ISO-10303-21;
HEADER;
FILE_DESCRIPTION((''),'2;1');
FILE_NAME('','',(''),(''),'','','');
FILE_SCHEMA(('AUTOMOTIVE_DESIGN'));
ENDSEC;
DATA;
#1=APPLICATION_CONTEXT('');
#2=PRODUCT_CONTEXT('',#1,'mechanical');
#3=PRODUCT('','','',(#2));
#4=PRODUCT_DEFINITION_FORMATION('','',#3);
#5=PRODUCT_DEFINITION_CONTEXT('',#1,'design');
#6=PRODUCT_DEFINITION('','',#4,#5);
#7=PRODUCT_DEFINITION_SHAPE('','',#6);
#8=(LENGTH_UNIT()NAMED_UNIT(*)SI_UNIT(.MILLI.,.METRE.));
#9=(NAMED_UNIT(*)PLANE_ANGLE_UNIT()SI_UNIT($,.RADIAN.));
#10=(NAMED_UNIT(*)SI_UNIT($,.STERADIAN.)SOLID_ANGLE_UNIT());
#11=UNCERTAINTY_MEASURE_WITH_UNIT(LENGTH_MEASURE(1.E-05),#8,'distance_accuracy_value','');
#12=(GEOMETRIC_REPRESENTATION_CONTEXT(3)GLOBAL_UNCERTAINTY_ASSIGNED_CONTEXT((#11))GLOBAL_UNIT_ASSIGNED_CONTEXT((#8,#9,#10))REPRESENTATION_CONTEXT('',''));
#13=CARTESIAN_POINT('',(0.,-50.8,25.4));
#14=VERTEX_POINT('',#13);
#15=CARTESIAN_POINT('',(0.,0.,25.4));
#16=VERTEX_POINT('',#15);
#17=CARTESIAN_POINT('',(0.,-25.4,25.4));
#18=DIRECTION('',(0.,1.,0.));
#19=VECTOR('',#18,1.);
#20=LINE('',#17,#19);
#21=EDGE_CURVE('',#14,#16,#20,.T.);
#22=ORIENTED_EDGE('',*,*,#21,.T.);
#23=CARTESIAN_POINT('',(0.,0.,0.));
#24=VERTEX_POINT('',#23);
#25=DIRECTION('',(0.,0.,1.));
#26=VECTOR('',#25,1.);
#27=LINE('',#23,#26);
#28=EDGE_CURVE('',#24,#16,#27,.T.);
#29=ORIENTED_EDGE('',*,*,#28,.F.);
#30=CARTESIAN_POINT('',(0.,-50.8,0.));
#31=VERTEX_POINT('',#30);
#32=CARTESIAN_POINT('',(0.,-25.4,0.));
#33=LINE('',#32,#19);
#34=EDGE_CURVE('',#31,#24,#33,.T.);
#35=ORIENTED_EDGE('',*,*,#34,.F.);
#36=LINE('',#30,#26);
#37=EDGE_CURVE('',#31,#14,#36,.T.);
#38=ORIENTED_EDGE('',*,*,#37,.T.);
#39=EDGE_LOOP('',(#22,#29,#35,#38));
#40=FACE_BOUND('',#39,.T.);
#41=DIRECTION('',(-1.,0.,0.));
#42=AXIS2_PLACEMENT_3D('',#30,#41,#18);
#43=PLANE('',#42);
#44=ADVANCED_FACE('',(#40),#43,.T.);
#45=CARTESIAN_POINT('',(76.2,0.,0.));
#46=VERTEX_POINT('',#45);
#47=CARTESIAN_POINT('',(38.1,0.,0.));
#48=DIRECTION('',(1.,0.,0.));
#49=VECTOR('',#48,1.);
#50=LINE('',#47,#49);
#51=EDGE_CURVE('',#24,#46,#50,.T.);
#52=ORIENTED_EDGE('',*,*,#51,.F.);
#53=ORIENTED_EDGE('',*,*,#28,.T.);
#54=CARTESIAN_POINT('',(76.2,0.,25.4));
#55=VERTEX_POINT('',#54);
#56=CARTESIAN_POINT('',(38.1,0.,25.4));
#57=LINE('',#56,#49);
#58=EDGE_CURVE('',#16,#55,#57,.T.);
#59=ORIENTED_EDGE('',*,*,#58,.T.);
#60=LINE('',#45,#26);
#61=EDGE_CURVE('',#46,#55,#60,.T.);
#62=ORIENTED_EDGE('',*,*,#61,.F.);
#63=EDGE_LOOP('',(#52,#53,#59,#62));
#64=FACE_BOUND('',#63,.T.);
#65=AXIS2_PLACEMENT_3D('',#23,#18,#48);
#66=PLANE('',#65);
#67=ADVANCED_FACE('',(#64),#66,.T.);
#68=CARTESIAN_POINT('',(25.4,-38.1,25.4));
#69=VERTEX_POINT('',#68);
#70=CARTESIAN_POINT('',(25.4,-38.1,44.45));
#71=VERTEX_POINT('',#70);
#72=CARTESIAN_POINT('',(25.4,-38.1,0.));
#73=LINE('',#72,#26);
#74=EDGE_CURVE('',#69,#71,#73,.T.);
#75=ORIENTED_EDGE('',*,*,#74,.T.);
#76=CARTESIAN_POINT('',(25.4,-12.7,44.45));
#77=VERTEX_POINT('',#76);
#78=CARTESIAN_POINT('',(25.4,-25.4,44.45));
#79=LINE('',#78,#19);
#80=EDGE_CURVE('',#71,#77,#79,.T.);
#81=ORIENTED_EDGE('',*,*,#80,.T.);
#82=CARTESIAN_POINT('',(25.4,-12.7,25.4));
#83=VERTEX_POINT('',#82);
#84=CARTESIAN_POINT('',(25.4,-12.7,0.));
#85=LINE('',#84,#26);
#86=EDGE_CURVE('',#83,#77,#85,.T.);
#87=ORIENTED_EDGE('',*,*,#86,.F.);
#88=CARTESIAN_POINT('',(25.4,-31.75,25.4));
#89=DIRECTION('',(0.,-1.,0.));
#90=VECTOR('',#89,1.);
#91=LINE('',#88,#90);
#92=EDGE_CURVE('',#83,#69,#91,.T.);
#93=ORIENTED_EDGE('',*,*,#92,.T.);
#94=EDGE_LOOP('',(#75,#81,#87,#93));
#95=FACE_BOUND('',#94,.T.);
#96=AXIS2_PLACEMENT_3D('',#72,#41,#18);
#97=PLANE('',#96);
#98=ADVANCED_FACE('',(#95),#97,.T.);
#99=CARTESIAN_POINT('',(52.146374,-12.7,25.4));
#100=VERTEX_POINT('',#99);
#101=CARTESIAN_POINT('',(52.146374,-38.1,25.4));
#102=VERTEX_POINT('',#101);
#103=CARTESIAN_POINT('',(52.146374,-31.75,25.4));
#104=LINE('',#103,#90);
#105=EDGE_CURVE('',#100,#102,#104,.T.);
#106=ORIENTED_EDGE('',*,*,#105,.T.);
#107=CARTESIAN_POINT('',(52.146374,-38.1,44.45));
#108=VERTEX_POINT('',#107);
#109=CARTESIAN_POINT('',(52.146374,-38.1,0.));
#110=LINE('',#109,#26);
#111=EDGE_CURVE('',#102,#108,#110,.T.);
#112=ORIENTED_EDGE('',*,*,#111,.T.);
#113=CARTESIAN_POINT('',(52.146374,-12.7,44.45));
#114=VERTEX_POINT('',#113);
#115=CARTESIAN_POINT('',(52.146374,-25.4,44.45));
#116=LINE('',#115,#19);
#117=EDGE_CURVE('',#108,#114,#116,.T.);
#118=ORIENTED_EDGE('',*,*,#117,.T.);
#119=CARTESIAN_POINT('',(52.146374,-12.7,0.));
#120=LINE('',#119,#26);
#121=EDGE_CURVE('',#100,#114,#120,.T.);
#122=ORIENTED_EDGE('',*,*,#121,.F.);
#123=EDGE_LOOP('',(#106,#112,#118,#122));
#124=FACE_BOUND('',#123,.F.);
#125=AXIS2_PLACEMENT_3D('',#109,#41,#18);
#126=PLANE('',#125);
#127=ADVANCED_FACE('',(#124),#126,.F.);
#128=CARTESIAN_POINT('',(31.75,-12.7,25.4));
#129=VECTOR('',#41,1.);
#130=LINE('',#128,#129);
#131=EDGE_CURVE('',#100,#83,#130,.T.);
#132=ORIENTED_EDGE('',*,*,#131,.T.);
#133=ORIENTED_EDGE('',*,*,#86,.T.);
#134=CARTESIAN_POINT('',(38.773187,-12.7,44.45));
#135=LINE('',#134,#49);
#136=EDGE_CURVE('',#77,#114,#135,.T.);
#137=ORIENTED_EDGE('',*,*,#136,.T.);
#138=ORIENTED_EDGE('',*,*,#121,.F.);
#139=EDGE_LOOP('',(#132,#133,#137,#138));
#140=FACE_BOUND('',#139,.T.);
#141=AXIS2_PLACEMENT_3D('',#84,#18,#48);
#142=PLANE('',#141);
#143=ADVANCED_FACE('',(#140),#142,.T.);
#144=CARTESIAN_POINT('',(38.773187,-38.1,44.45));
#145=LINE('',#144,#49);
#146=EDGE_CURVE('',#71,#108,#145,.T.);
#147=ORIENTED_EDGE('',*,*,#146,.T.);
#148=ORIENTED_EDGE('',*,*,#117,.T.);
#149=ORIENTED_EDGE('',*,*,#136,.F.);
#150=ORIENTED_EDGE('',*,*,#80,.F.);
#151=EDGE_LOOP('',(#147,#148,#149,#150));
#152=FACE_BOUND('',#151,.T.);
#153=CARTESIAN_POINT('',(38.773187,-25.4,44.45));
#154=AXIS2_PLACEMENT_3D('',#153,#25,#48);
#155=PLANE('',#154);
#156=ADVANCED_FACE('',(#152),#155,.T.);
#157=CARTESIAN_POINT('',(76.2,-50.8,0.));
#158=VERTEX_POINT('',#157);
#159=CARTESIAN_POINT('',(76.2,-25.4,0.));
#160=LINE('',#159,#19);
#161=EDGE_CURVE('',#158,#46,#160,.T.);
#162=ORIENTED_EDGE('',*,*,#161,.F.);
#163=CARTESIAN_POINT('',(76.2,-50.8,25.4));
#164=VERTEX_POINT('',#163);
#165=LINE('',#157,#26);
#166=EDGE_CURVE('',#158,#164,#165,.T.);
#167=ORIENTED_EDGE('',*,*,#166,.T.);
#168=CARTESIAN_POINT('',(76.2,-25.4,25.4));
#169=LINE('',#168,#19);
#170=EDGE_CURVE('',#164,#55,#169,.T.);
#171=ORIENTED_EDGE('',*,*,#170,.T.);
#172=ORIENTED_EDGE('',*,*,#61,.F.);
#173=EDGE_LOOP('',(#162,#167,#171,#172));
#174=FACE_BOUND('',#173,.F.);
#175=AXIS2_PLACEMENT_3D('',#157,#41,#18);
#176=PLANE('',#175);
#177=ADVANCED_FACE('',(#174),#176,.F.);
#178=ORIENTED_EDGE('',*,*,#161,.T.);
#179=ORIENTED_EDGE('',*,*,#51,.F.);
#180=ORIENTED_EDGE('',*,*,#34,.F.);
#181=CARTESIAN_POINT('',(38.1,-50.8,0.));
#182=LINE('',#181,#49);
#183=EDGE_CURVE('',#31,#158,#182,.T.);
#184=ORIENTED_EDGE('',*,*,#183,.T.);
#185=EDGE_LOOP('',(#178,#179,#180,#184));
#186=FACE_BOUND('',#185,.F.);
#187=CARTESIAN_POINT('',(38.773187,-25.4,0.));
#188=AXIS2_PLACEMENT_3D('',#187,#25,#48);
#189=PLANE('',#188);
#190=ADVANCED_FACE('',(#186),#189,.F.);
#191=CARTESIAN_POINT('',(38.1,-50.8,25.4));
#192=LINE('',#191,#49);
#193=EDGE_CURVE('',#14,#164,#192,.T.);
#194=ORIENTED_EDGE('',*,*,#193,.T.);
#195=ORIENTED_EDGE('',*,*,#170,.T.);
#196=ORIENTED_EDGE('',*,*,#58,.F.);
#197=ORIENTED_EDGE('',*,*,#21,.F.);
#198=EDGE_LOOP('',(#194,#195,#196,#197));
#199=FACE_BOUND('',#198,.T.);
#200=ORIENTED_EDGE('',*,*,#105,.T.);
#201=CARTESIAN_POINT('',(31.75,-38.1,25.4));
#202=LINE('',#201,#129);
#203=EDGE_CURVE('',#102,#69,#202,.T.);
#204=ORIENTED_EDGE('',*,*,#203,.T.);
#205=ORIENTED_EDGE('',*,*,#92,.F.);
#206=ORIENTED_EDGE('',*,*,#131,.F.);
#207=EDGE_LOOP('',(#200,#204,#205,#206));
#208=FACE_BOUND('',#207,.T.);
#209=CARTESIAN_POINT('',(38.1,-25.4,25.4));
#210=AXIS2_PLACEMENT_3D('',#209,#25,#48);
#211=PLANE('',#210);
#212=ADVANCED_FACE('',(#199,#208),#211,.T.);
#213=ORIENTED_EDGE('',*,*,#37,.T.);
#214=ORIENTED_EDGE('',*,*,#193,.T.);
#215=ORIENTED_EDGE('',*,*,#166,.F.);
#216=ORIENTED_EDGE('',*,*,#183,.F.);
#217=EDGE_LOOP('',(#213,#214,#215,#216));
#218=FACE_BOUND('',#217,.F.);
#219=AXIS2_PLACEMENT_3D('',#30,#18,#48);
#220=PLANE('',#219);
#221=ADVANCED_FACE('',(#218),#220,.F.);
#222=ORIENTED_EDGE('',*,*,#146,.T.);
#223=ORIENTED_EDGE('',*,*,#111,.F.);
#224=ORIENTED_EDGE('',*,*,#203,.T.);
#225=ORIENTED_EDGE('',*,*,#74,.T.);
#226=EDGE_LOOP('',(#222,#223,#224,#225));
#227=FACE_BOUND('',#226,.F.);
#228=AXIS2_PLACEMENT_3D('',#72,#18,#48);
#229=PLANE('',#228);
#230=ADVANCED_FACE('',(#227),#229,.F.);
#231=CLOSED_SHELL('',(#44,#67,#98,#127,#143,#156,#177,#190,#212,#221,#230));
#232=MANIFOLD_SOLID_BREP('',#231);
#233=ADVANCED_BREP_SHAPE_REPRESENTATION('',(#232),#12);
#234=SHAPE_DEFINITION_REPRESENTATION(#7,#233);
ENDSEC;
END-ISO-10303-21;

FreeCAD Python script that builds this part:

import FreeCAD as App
import Part
import Sketcher

V = App.Vector
Q = App.Units.Quantity


def add_polygon(sketch, points):
    """Adds a closed chain of lines whose ends are joined by coincident constraints."""
    first, n = sketch.GeometryCount, len(points)
    for a, b in zip(points, points[1:] + points[:1]):
        sketch.addGeometry(Part.LineSegment(App.Vector(*a, 0), App.Vector(*b, 0)), False)
    for i in range(n):
        sketch.addConstraint(Sketcher.Constraint("Coincident", first + i, 2, first + (i + 1) % n, 1))

doc = App.newDocument("Part")
body = doc.addObject("PartDesign::Body", "Body")

sketch1 = body.newObject("Sketcher::SketchObject", "Sketch")
sketch1.AttachmentSupport = (doc.getObject("XY_Plane"), [""])
sketch1.MapMode = "FlatFace"
add_polygon(sketch1, [(0, 0), (0, -50.8), (76.2, -50.8), (76.2, 0)])
sketch1.addConstraint(Sketcher.Constraint("Vertical", 0))
sketch1.addConstraint(Sketcher.Constraint("Horizontal", 1))
sketch1.addConstraint(Sketcher.Constraint("Vertical", 2))
sketch1.addConstraint(Sketcher.Constraint("Horizontal", 3))
sketch1.addConstraint(Sketcher.Constraint("Coincident", 3, 2, -1, 1))
sketch1.addConstraint(Sketcher.Constraint("DistanceX", 1, 1, 1, 2, Q("3 in")))
sketch1.addConstraint(Sketcher.Constraint("DistanceY", 0, 2, 0, 1, Q("2 in")))
pad1 = body.newObject("PartDesign::Pad", "Pad")
pad1.Profile = sketch1
pad1.Length = Q("1 in")

sketch2 = body.newObject("Sketcher::SketchObject", "Sketch001")
sketch2.AttachmentSupport = (doc.getObject("XY_Plane"), [""])
sketch2.MapMode = "FlatFace"
add_polygon(sketch2, [(25.4, -12.7), (25.4, -38.1), (52.146374, -38.1), (52.146374, -12.7)])
sketch2.addConstraint(Sketcher.Constraint("Vertical", 0))
sketch2.addConstraint(Sketcher.Constraint("Horizontal", 1))
sketch2.addConstraint(Sketcher.Constraint("Vertical", 2))
sketch2.addConstraint(Sketcher.Constraint("Horizontal", 3))
sketch2.addConstraint(Sketcher.Constraint("DistanceY", 0, 2, 0, 1, Q("1 in")))
sketch2.addConstraint(Sketcher.Constraint("DistanceX", -1, 1, 0, 2, Q("1 in")))
sketch2.addConstraint(Sketcher.Constraint("DistanceY", 0, 2, -1, 1, Q("1.5 in")))
sketch2.addConstraint(Sketcher.Constraint("DistanceX", 1, 1, 1, 2, Q("26.746374 mm")))
pad2 = body.newObject("PartDesign::Pad", "Pad001")
pad2.Profile = sketch2
pad2.Length = Q("1.75 in")

doc.recompute()
